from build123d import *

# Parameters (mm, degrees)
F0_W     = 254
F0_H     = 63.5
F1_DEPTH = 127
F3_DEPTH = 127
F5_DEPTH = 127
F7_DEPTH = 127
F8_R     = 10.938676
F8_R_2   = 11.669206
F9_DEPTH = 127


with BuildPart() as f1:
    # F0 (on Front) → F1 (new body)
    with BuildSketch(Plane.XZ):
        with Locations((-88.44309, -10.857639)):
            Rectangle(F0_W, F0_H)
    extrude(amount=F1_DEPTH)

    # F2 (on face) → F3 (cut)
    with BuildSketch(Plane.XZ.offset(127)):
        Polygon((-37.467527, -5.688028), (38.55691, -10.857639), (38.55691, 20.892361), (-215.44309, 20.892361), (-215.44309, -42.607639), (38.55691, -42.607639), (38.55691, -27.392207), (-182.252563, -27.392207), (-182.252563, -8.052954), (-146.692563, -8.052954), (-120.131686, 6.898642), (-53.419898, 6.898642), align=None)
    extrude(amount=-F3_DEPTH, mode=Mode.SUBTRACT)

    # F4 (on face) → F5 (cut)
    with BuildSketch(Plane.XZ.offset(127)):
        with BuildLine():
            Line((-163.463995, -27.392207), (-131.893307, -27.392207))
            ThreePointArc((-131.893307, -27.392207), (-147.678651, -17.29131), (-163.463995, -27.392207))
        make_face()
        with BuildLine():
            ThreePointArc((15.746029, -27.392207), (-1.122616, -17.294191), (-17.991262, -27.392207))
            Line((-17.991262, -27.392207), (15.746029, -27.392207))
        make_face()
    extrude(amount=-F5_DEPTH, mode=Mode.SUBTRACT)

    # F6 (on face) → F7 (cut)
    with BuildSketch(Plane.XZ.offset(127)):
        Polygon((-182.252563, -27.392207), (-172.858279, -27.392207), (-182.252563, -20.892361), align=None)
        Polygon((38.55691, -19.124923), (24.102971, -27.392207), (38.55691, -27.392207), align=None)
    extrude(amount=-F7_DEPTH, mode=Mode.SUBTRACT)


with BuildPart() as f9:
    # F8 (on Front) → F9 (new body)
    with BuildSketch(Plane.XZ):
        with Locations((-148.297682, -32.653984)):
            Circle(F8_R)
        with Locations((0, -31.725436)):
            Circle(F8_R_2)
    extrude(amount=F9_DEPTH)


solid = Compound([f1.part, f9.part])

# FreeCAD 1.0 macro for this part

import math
import FreeCAD as App
import Part
import Sketcher
Q = App.Units.Quantity


def add_polygon(sketch, points):
    """Adds a closed chain of lines whose ends are joined by coincident constraints."""
    first, n = sketch.GeometryCount, len(points)
    for a, b in zip(points, points[1:] + points[:1]):
        sketch.addGeometry(Part.LineSegment(App.Vector(*a, 0), App.Vector(*b, 0)), False)
    for i in range(n):
        sketch.addConstraint(Sketcher.Constraint("Coincident", first + i, 2, first + (i + 1) % n, 1))

doc = App.newDocument("Part")
body = doc.addObject("PartDesign::Body", "Body")

# Sketch on XZ plane
sketch1 = body.newObject("Sketcher::SketchObject", "Sketch")
sketch1.AttachmentSupport = (doc.getObject("XZ_Plane"), [""])
sketch1.MapMode = "FlatFace"
add_polygon(sketch1, [(-215.44309, 20.892361), (-215.44309, -42.607639), (38.55691, -42.607639), (38.55691, 20.892361)])  # lines 0-3
sketch1.addConstraint(Sketcher.Constraint("Vertical", 0))
sketch1.addConstraint(Sketcher.Constraint("Horizontal", 1))
sketch1.addConstraint(Sketcher.Constraint("Vertical", 2))
sketch1.addConstraint(Sketcher.Constraint("Horizontal", 3))
sketch1.addConstraint(Sketcher.Constraint("DistanceX", 1, 1, 1, 2, Q("10 in")))
sketch1.addConstraint(Sketcher.Constraint("DistanceY", 0, 2, 0, 1, Q("2.5 in")))
sketch1.addConstraint(Sketcher.Constraint("DistanceX", 0, 2, -1, 1, Q("215.44309 mm")))
sketch1.addConstraint(Sketcher.Constraint("DistanceY", 0, 2, -1, 1, Q("42.607639 mm")))
pad1 = body.newObject("PartDesign::Pad", "Pad")
pad1.Profile = sketch1
pad1.Length = Q("5 in")

# Sketch on XZ plane
sketch2 = body.newObject("Sketcher::SketchObject", "Sketch001")
sketch2.AttachmentSupport = (doc.getObject("XZ_Plane"), [""])
sketch2.MapMode = "FlatFace"
sketch2.AttachmentOffset = App.Placement(App.Vector(0, 0, 5 * 25.4), App.Rotation())
add_polygon(sketch2, [(-37.467527, -5.688028), (38.55691, -10.857639), (38.55691, 20.892361), (-215.44309, 20.892361), (-215.44309, -42.607639), (38.55691, -42.607639), (38.55691, -27.392207), (-182.252563, -27.392207), (-182.252563, -8.052954), (-146.692563, -8.052954), (-120.131686, 6.898642), (-53.419898, 6.898642)])  # lines 0-11
sketch2.addConstraint(Sketcher.Constraint("Vertical", 1))
sketch2.addConstraint(Sketcher.Constraint("Horizontal", 2))
sketch2.addConstraint(Sketcher.Constraint("Vertical", 3))
sketch2.addConstraint(Sketcher.Constraint("Horizontal", 4))
sketch2.addConstraint(Sketcher.Constraint("Vertical", 5))
sketch2.addConstraint(Sketcher.Constraint("Horizontal", 6))
sketch2.addConstraint(Sketcher.Constraint("Vertical", 7))
sketch2.addConstraint(Sketcher.Constraint("Horizontal", 8))
sketch2.addConstraint(Sketcher.Constraint("Horizontal", 10))
sketch2.addConstraint(Sketcher.Constraint("Vertical", 1, 2, 4, 2))
sketch2.addConstraint(Sketcher.Constraint("DistanceX", 2, 2, 2, 1, Q("10 in")))
sketch2.addConstraint(Sketcher.Constraint("Distance", 0, Q("3 in")))
sketch2.addConstraint(Sketcher.Constraint("DistanceX", 8, 1, 8, 2, Q("1.4 in")))
sketch2.addConstraint(Sketcher.Constraint("DistanceY", 3, 2, 3, 1, Q("2.5 in")))
sketch2.addConstraint(Sketcher.Constraint("Distance", 9, Q("1.2 in")))
sketch2.addConstraint(Sketcher.Constraint("Distance", 11, Q("0.8 in")))
sketch2.addConstraint(Sketcher.Constraint("DistanceY", 1, 1, 1, 2, Q("1.25 in")))
sketch2.addConstraint(Sketcher.Constraint("DistanceY", -1, 1, 9, 2, Q("0.2716001 in")))
sketch2.addConstraint(Sketcher.Constraint("DistanceX", 10, 1, 10, 2, Q("66.711788 mm")))
sketch2.addConstraint(Sketcher.Constraint("DistanceX", 10, 2, -1, 1, Q("53.419898 mm")))
sketch2.addConstraint(Sketcher.Constraint("DistanceX", 6, 2, 6, 1, Q("220.809473 mm")))
sketch2.addConstraint(Sketcher.Constraint("DistanceY", 5, 1, 5, 2, Q("15.215432 mm")))
sketch2.addConstraint(Sketcher.Constraint("DistanceY", 7, 1, 7, 2, Q("19.339253 mm")))
sketch2.addConstraint(Sketcher.Constraint("DistanceX", -1, 1, 0, 2, Q("38.55691 mm")))
pocket1 = body.newObject("PartDesign::Pocket", "Pocket")
pocket1.Profile = sketch2
pocket1.Length = Q("5 in")

# Sketch on XZ plane
sketch3 = body.newObject("Sketcher::SketchObject", "Sketch002")
sketch3.AttachmentSupport = (doc.getObject("XZ_Plane"), [""])
sketch3.MapMode = "FlatFace"
sketch3.AttachmentOffset = App.Placement(App.Vector(0, 0, 5 * 25.4), App.Rotation())
sketch3.addGeometry(Part.LineSegment(App.Vector(-163.463995, -27.392207, 0), App.Vector(-131.893307, -27.392207, 0)), False)
sketch3.addGeometry(Part.ArcOfCircle(Part.Circle(App.Vector(-147.678651, -34.676162, 0), App.Vector(0, 0, 1), 17.384852), math.radians(24.770388), math.radians(155.229612)), False)
sketch3.addGeometry(Part.ArcOfCircle(Part.Circle(App.Vector(-1.122616, -36.43266, 0), App.Vector(0, 0, 1), 19.138469), math.radians(28.188297), math.radians(151.811703)), False)
sketch3.addGeometry(Part.LineSegment(App.Vector(-17.991262, -27.392207, 0), App.Vector(15.746029, -27.392207, 0)), False)
sketch3.addConstraint(Sketcher.Constraint("Coincident", 0, 1, 1, 2))
sketch3.addConstraint(Sketcher.Constraint("Coincident", 1, 1, 0, 2))
sketch3.addConstraint(Sketcher.Constraint("Coincident", 2, 1, 3, 2))
sketch3.addConstraint(Sketcher.Constraint("Coincident", 3, 1, 2, 2))
sketch3.addConstraint(Sketcher.Constraint("Horizontal", 0))
sketch3.addConstraint(Sketcher.Constraint("Horizontal", 3))
sketch3.addConstraint(Sketcher.Constraint("Horizontal", 1, 1, 2, 1))
sketch3.addConstraint(Sketcher.Constraint("Radius", 2, Q("19.138469 mm")))
sketch3.addConstraint(Sketcher.Constraint("Radius", 1, Q("17.384852 mm")))
sketch3.addConstraint(Sketcher.Constraint("DistanceX", 0, 1, 0, 2, Q("31.570688 mm")))
sketch3.addConstraint(Sketcher.Constraint("DistanceX", 3, 1, 3, 2, Q("33.737291 mm")))
sketch3.addConstraint(Sketcher.Constraint("DistanceX", 1, 3, -1, 1, Q("147.678651 mm")))
sketch3.addConstraint(Sketcher.Constraint("DistanceY", 2, 3, -1, 1, Q("36.43266 mm")))
sketch3.addConstraint(Sketcher.Constraint("DistanceX", -1, 1, 2, 1, Q("15.746029 mm")))
pocket2 = body.newObject("PartDesign::Pocket", "Pocket001")
pocket2.Profile = sketch3
pocket2.Length = Q("5 in")

# Sketch on XZ plane
sketch4 = body.newObject("Sketcher::SketchObject", "Sketch003")
sketch4.AttachmentSupport = (doc.getObject("XZ_Plane"), [""])
sketch4.MapMode = "FlatFace"
sketch4.AttachmentOffset = App.Placement(App.Vector(0, 0, 5 * 25.4), App.Rotation())
add_polygon(sketch4, [(-182.252563, -27.392207), (-172.858279, -27.392207), (-182.252563, -20.892361)])  # lines 0-2
add_polygon(sketch4, [(38.55691, -19.124923), (24.102971, -27.392207), (38.55691, -27.392207)])  # lines 3-5
sketch4.addConstraint(Sketcher.Constraint("Horizontal", 0))
sketch4.addConstraint(Sketcher.Constraint("Vertical", 2))
sketch4.addConstraint(Sketcher.Constraint("Horizontal", 4))
sketch4.addConstraint(Sketcher.Constraint("Vertical", 5))
sketch4.addConstraint(Sketcher.Constraint("Horizontal", 2, 2, 3, 2))
sketch4.addConstraint(Sketcher.Constraint("DistanceX", 4, 1, 4, 2, Q("14.453939 mm")))
sketch4.addConstraint(Sketcher.Constraint("DistanceX", 0, 1, 0, 2, Q("9.394284 mm")))
sketch4.addConstraint(Sketcher.Constraint("DistanceY", 2, 2, 2, 1, Q("6.499846 mm")))
sketch4.addConstraint(Sketcher.Constraint("DistanceY", 5, 1, 5, 2, Q("8.267284 mm")))
sketch4.addConstraint(Sketcher.Constraint("DistanceX", 0, 2, -1, 1, Q("172.858279 mm")))
sketch4.addConstraint(Sketcher.Constraint("DistanceY", 1, 2, -1, 1, Q("20.892361 mm")))
sketch4.addConstraint(Sketcher.Constraint("DistanceX", -1, 1, 3, 2, Q("24.102971 mm")))
pocket3 = body.newObject("PartDesign::Pocket", "Pocket002")
pocket3.Profile = sketch4
pocket3.Length = Q("5 in")
body2 = doc.addObject("PartDesign::Body", "Body001")
body2.AllowCompound = True

# Sketch on XZ plane
sketch5 = body2.newObject("Sketcher::SketchObject", "Sketch004")
sketch5.AttachmentSupport = (doc.getObject("XZ_Plane001"), [""])
sketch5.MapMode = "FlatFace"
sketch5.addGeometry(Part.Circle(App.Vector(-148.297682, -32.653984, 0), App.Vector(0, 0, 1), 10.938676), False)
sketch5.addGeometry(Part.Circle(App.Vector(0, -31.725436, 0), App.Vector(0, 0, 1), 11.669206), False)
sketch5.addConstraint(Sketcher.Constraint("PointOnObject", 1, 3, -2))
sketch5.addConstraint(Sketcher.Constraint("Diameter", 0, Q("21.877352 mm")))
sketch5.addConstraint(Sketcher.Constraint("Diameter", 1, Q("23.338412 mm")))
sketch5.addConstraint(Sketcher.Constraint("DistanceX", 0, 3, -1, 1, Q("148.297682 mm")))
sketch5.addConstraint(Sketcher.Constraint("DistanceY", 0, 3, 1, 3, Q("0.928548 mm")))
sketch5.addConstraint(Sketcher.Constraint("DistanceY", 0, 3, -1, 1, Q("32.653984 mm")))
pad2 = body2.newObject("PartDesign::Pad", "Pad001")
pad2.Profile = sketch5
pad2.Length = Q("5 in")

doc.recompute()
